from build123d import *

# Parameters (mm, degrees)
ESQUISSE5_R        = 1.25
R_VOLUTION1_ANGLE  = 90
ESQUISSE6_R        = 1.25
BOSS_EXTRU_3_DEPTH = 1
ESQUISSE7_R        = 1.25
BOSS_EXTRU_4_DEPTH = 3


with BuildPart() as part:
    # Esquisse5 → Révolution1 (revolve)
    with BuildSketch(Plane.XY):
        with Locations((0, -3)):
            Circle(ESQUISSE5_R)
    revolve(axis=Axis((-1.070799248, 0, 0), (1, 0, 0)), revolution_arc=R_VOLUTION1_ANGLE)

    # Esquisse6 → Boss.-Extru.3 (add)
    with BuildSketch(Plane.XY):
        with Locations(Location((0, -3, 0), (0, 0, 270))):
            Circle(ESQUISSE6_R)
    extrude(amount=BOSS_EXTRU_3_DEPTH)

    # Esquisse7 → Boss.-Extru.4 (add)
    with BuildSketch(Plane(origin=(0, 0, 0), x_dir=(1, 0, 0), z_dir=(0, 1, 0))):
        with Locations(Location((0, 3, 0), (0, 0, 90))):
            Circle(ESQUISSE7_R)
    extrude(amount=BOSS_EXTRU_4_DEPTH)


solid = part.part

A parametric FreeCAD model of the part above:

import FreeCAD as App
import Part
import Sketcher
from FreeCAD import Vector

doc = App.newDocument("Part")
body = doc.addObject("PartDesign::Body", "Body")

# Sketch on XY plane
sketch1 = body.newObject("Sketcher::SketchObject", "Sketch")
sketch1.AttachmentSupport = (doc.getObject("XY_Plane"), [""])
sketch1.MapMode = "FlatFace"
sketch1.addGeometry(Part.Circle(Vector(0, -3, 0), Vector(0, 0, 1), 1.2), False)
sketch1.addConstraint([
    Sketcher.Constraint("PointOnObject", 0, 3, -2),
    Sketcher.Constraint("Diameter", 0, 2.5),
    Sketcher.Constraint("DistanceY", 0, 3, -1, 1, 3.0),
])
revolution = body.newObject("PartDesign::Revolution", "Revolution")
revolution.Profile = sketch1
revolution.ReferenceAxis = (sketch1, ["H_Axis"])
revolution.Angle = 90

# Sketch on XY plane
sketch2 = body.newObject("Sketcher::SketchObject", "Sketch001")
sketch2.AttachmentSupport = (doc.getObject("XY_Plane"), [""])
sketch2.MapMode = "FlatFace"
sketch2.addGeometry(Part.Circle(Vector(0, -3, 0), Vector(0, 0, 1), 1.2), False)
sketch2.addConstraint([
    Sketcher.Constraint("PointOnObject", 0, 3, -2),
    Sketcher.Constraint("Diameter", 0, 2.5),
    Sketcher.Constraint("DistanceY", 0, 3, -1, 1, 3.0),
])
pad1 = body.newObject("PartDesign::Pad", "Pad")
pad1.Profile = sketch2
pad1.Length = 1

# Sketch on XZ plane
sketch3 = body.newObject("Sketcher::SketchObject", "Sketch002")
sketch3.AttachmentSupport = (doc.getObject("XZ_Plane"), [""])
sketch3.MapMode = "FlatFace"
sketch3.addGeometry(Part.Circle(Vector(0, -3, 0), Vector(0, 0, 1), 1.2), False)
sketch3.addConstraint([
    Sketcher.Constraint("PointOnObject", 0, 3, -2),
    Sketcher.Constraint("Diameter", 0, 2.5),
    Sketcher.Constraint("DistanceY", 0, 3, -1, 1, 3.0),
])
pad2 = body.newObject("PartDesign::Pad", "Pad001")
pad2.Profile = sketch3
pad2.Length = 3
pad2.Reversed = True

doc.recompute()
